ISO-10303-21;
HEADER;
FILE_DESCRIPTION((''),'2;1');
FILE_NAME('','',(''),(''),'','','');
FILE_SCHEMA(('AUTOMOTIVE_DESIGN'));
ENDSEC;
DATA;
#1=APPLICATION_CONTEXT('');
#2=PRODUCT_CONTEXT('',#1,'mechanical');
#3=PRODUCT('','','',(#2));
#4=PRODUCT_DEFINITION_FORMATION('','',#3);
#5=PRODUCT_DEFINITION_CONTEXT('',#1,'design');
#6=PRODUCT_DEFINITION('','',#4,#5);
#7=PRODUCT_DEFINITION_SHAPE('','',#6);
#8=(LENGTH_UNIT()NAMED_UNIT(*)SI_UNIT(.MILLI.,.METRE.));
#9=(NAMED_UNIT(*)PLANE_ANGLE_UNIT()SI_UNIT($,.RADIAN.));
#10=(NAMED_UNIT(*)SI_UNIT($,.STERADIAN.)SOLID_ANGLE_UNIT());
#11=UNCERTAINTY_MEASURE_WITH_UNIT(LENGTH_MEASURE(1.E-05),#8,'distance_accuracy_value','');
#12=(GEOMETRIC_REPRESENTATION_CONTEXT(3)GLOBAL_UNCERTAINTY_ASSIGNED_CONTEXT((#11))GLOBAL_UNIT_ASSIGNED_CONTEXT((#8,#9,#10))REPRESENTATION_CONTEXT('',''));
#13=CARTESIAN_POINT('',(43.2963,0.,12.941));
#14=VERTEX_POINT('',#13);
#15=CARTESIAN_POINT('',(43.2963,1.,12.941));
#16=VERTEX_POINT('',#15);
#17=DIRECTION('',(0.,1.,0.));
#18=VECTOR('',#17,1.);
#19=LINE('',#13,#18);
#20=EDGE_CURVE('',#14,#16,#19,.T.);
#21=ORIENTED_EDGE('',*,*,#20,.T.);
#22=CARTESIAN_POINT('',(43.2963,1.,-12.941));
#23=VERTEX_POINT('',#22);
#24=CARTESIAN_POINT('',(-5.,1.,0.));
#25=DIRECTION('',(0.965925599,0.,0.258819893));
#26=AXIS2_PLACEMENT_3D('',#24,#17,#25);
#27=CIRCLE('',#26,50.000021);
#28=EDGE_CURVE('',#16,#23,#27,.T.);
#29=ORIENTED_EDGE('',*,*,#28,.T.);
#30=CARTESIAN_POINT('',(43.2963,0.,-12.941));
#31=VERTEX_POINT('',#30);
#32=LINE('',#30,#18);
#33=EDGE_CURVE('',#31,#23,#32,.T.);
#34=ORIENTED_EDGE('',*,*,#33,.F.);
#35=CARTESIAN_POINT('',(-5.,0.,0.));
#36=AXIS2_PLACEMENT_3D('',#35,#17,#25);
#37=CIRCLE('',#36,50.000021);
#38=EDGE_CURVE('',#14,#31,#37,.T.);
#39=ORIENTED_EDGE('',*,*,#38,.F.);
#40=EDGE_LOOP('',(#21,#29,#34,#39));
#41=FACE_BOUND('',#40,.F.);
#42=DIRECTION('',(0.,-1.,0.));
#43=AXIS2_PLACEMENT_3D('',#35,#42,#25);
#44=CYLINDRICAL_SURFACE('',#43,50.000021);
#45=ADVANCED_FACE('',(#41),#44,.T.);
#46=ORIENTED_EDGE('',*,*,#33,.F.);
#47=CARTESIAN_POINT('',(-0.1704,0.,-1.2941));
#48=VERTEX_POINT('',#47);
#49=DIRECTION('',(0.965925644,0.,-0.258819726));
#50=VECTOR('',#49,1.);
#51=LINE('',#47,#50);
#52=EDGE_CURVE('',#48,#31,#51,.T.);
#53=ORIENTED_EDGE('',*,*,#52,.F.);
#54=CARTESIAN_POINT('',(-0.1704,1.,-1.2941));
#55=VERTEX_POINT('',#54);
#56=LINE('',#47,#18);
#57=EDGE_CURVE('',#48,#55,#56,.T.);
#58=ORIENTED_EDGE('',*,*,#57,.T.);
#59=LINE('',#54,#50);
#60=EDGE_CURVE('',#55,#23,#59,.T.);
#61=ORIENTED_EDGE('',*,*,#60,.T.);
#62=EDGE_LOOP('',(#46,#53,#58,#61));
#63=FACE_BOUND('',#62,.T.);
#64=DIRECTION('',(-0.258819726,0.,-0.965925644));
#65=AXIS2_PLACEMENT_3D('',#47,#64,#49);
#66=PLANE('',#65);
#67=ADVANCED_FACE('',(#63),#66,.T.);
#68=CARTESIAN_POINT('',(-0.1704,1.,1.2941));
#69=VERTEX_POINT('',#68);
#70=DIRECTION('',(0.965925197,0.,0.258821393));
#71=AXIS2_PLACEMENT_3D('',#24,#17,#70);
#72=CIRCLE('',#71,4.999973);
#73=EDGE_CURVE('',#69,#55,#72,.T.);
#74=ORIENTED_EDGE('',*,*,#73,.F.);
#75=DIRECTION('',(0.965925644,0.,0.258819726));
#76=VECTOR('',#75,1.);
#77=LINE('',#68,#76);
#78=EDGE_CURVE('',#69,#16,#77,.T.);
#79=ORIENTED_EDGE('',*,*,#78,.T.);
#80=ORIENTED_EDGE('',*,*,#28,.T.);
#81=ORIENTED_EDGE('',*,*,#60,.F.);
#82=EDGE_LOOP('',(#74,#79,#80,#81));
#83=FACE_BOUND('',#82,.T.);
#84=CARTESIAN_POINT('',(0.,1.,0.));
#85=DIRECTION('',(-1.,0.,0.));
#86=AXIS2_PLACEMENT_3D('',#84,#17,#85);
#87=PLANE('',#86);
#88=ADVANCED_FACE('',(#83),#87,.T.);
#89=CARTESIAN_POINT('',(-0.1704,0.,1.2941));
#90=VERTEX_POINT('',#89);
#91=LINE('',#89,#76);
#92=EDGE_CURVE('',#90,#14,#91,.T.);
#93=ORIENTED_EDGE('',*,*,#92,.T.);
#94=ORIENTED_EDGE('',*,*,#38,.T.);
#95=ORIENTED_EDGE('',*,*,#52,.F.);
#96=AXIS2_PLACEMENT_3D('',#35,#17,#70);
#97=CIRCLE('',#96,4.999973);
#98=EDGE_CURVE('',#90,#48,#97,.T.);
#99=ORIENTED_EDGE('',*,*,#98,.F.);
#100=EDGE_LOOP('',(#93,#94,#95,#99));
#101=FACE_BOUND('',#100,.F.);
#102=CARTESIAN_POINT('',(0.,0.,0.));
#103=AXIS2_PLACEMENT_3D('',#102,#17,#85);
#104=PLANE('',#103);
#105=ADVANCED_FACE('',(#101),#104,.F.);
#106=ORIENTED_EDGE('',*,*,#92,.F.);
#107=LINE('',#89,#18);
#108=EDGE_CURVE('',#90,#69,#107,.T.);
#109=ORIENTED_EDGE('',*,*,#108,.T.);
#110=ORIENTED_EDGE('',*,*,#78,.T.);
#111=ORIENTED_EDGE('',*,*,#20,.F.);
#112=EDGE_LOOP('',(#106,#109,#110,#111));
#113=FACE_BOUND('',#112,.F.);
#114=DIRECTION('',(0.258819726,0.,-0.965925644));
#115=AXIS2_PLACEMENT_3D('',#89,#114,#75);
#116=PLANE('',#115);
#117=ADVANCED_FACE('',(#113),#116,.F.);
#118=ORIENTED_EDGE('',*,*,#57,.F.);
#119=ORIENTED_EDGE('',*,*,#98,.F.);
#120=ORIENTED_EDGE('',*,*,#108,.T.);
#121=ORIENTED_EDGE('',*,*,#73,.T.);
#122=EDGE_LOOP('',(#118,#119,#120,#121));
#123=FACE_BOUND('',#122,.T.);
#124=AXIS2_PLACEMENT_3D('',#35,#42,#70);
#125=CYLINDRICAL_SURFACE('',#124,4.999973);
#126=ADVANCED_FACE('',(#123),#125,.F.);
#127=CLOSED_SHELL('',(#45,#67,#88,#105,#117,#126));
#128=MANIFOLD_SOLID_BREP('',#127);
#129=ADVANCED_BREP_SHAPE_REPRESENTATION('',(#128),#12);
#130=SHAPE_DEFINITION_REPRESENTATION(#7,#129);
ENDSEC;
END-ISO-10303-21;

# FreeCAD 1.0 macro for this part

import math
import FreeCAD as App
import Part
import Sketcher
Q = App.Units.Quantity

doc = App.newDocument("Part")
body = doc.addObject("PartDesign::Body", "Body")

sketch1 = doc.addObject("Sketcher::SketchObject", "Sketch")
body.addObject(sketch1)
sketch1.AttachmentSupport = (doc.XZ_Plane, [""])
sketch1.MapMode = "FlatFace"
sketch1.addGeometry([
    Part.ArcOfCircle(Part.Circle(App.Vector(-5, 0, 0), App.Vector(0, 0, 1), 5), math.radians(-15), math.radians(15)),
    Part.LineSegment(App.Vector(-0.2, 1.3, 0), App.Vector(43.3, 12.9, 0)),
    Part.ArcOfCircle(Part.Circle(App.Vector(-5, 0, 0), App.Vector(0, 0, 1), 50), math.radians(-15), math.radians(15)),
    Part.LineSegment(App.Vector(43.3, -12.9, 0), App.Vector(-0.2, -1.3, 0)),
], False)
sketch1.addConstraint([
    Sketcher.Constraint("Coincident", 0, 2, 1, 1),
    Sketcher.Constraint("Coincident", 1, 2, 2, 2),
    Sketcher.Constraint("Coincident", 2, 1, 3, 1),
    Sketcher.Constraint("Coincident", 3, 2, 0, 1),
    Sketcher.Constraint("Coincident", 2, 3, 0, 3),
    Sketcher.Constraint("Symmetric", 1, 2, 2, 1, -1),
    Sketcher.Constraint("Vertical", 0, 2, 3, 2),
    Sketcher.Constraint("Radius", 0, 5.0),
    Sketcher.Constraint("Radius", 2, 50.0),
    Sketcher.Constraint("DistanceX", 0, 3, -1, 1, 5.0),
    Sketcher.Constraint("Angle", 1, Q("15 deg")),
    Sketcher.Constraint("DistanceY", -1, 1, 0, 2, 1.294),
])
pad1 = doc.addObject("PartDesign::Pad", "Pad")
body.addObject(pad1)
pad1.Profile = sketch1
pad1.Length = 1
pad1.Reversed = True

doc.recompute()
